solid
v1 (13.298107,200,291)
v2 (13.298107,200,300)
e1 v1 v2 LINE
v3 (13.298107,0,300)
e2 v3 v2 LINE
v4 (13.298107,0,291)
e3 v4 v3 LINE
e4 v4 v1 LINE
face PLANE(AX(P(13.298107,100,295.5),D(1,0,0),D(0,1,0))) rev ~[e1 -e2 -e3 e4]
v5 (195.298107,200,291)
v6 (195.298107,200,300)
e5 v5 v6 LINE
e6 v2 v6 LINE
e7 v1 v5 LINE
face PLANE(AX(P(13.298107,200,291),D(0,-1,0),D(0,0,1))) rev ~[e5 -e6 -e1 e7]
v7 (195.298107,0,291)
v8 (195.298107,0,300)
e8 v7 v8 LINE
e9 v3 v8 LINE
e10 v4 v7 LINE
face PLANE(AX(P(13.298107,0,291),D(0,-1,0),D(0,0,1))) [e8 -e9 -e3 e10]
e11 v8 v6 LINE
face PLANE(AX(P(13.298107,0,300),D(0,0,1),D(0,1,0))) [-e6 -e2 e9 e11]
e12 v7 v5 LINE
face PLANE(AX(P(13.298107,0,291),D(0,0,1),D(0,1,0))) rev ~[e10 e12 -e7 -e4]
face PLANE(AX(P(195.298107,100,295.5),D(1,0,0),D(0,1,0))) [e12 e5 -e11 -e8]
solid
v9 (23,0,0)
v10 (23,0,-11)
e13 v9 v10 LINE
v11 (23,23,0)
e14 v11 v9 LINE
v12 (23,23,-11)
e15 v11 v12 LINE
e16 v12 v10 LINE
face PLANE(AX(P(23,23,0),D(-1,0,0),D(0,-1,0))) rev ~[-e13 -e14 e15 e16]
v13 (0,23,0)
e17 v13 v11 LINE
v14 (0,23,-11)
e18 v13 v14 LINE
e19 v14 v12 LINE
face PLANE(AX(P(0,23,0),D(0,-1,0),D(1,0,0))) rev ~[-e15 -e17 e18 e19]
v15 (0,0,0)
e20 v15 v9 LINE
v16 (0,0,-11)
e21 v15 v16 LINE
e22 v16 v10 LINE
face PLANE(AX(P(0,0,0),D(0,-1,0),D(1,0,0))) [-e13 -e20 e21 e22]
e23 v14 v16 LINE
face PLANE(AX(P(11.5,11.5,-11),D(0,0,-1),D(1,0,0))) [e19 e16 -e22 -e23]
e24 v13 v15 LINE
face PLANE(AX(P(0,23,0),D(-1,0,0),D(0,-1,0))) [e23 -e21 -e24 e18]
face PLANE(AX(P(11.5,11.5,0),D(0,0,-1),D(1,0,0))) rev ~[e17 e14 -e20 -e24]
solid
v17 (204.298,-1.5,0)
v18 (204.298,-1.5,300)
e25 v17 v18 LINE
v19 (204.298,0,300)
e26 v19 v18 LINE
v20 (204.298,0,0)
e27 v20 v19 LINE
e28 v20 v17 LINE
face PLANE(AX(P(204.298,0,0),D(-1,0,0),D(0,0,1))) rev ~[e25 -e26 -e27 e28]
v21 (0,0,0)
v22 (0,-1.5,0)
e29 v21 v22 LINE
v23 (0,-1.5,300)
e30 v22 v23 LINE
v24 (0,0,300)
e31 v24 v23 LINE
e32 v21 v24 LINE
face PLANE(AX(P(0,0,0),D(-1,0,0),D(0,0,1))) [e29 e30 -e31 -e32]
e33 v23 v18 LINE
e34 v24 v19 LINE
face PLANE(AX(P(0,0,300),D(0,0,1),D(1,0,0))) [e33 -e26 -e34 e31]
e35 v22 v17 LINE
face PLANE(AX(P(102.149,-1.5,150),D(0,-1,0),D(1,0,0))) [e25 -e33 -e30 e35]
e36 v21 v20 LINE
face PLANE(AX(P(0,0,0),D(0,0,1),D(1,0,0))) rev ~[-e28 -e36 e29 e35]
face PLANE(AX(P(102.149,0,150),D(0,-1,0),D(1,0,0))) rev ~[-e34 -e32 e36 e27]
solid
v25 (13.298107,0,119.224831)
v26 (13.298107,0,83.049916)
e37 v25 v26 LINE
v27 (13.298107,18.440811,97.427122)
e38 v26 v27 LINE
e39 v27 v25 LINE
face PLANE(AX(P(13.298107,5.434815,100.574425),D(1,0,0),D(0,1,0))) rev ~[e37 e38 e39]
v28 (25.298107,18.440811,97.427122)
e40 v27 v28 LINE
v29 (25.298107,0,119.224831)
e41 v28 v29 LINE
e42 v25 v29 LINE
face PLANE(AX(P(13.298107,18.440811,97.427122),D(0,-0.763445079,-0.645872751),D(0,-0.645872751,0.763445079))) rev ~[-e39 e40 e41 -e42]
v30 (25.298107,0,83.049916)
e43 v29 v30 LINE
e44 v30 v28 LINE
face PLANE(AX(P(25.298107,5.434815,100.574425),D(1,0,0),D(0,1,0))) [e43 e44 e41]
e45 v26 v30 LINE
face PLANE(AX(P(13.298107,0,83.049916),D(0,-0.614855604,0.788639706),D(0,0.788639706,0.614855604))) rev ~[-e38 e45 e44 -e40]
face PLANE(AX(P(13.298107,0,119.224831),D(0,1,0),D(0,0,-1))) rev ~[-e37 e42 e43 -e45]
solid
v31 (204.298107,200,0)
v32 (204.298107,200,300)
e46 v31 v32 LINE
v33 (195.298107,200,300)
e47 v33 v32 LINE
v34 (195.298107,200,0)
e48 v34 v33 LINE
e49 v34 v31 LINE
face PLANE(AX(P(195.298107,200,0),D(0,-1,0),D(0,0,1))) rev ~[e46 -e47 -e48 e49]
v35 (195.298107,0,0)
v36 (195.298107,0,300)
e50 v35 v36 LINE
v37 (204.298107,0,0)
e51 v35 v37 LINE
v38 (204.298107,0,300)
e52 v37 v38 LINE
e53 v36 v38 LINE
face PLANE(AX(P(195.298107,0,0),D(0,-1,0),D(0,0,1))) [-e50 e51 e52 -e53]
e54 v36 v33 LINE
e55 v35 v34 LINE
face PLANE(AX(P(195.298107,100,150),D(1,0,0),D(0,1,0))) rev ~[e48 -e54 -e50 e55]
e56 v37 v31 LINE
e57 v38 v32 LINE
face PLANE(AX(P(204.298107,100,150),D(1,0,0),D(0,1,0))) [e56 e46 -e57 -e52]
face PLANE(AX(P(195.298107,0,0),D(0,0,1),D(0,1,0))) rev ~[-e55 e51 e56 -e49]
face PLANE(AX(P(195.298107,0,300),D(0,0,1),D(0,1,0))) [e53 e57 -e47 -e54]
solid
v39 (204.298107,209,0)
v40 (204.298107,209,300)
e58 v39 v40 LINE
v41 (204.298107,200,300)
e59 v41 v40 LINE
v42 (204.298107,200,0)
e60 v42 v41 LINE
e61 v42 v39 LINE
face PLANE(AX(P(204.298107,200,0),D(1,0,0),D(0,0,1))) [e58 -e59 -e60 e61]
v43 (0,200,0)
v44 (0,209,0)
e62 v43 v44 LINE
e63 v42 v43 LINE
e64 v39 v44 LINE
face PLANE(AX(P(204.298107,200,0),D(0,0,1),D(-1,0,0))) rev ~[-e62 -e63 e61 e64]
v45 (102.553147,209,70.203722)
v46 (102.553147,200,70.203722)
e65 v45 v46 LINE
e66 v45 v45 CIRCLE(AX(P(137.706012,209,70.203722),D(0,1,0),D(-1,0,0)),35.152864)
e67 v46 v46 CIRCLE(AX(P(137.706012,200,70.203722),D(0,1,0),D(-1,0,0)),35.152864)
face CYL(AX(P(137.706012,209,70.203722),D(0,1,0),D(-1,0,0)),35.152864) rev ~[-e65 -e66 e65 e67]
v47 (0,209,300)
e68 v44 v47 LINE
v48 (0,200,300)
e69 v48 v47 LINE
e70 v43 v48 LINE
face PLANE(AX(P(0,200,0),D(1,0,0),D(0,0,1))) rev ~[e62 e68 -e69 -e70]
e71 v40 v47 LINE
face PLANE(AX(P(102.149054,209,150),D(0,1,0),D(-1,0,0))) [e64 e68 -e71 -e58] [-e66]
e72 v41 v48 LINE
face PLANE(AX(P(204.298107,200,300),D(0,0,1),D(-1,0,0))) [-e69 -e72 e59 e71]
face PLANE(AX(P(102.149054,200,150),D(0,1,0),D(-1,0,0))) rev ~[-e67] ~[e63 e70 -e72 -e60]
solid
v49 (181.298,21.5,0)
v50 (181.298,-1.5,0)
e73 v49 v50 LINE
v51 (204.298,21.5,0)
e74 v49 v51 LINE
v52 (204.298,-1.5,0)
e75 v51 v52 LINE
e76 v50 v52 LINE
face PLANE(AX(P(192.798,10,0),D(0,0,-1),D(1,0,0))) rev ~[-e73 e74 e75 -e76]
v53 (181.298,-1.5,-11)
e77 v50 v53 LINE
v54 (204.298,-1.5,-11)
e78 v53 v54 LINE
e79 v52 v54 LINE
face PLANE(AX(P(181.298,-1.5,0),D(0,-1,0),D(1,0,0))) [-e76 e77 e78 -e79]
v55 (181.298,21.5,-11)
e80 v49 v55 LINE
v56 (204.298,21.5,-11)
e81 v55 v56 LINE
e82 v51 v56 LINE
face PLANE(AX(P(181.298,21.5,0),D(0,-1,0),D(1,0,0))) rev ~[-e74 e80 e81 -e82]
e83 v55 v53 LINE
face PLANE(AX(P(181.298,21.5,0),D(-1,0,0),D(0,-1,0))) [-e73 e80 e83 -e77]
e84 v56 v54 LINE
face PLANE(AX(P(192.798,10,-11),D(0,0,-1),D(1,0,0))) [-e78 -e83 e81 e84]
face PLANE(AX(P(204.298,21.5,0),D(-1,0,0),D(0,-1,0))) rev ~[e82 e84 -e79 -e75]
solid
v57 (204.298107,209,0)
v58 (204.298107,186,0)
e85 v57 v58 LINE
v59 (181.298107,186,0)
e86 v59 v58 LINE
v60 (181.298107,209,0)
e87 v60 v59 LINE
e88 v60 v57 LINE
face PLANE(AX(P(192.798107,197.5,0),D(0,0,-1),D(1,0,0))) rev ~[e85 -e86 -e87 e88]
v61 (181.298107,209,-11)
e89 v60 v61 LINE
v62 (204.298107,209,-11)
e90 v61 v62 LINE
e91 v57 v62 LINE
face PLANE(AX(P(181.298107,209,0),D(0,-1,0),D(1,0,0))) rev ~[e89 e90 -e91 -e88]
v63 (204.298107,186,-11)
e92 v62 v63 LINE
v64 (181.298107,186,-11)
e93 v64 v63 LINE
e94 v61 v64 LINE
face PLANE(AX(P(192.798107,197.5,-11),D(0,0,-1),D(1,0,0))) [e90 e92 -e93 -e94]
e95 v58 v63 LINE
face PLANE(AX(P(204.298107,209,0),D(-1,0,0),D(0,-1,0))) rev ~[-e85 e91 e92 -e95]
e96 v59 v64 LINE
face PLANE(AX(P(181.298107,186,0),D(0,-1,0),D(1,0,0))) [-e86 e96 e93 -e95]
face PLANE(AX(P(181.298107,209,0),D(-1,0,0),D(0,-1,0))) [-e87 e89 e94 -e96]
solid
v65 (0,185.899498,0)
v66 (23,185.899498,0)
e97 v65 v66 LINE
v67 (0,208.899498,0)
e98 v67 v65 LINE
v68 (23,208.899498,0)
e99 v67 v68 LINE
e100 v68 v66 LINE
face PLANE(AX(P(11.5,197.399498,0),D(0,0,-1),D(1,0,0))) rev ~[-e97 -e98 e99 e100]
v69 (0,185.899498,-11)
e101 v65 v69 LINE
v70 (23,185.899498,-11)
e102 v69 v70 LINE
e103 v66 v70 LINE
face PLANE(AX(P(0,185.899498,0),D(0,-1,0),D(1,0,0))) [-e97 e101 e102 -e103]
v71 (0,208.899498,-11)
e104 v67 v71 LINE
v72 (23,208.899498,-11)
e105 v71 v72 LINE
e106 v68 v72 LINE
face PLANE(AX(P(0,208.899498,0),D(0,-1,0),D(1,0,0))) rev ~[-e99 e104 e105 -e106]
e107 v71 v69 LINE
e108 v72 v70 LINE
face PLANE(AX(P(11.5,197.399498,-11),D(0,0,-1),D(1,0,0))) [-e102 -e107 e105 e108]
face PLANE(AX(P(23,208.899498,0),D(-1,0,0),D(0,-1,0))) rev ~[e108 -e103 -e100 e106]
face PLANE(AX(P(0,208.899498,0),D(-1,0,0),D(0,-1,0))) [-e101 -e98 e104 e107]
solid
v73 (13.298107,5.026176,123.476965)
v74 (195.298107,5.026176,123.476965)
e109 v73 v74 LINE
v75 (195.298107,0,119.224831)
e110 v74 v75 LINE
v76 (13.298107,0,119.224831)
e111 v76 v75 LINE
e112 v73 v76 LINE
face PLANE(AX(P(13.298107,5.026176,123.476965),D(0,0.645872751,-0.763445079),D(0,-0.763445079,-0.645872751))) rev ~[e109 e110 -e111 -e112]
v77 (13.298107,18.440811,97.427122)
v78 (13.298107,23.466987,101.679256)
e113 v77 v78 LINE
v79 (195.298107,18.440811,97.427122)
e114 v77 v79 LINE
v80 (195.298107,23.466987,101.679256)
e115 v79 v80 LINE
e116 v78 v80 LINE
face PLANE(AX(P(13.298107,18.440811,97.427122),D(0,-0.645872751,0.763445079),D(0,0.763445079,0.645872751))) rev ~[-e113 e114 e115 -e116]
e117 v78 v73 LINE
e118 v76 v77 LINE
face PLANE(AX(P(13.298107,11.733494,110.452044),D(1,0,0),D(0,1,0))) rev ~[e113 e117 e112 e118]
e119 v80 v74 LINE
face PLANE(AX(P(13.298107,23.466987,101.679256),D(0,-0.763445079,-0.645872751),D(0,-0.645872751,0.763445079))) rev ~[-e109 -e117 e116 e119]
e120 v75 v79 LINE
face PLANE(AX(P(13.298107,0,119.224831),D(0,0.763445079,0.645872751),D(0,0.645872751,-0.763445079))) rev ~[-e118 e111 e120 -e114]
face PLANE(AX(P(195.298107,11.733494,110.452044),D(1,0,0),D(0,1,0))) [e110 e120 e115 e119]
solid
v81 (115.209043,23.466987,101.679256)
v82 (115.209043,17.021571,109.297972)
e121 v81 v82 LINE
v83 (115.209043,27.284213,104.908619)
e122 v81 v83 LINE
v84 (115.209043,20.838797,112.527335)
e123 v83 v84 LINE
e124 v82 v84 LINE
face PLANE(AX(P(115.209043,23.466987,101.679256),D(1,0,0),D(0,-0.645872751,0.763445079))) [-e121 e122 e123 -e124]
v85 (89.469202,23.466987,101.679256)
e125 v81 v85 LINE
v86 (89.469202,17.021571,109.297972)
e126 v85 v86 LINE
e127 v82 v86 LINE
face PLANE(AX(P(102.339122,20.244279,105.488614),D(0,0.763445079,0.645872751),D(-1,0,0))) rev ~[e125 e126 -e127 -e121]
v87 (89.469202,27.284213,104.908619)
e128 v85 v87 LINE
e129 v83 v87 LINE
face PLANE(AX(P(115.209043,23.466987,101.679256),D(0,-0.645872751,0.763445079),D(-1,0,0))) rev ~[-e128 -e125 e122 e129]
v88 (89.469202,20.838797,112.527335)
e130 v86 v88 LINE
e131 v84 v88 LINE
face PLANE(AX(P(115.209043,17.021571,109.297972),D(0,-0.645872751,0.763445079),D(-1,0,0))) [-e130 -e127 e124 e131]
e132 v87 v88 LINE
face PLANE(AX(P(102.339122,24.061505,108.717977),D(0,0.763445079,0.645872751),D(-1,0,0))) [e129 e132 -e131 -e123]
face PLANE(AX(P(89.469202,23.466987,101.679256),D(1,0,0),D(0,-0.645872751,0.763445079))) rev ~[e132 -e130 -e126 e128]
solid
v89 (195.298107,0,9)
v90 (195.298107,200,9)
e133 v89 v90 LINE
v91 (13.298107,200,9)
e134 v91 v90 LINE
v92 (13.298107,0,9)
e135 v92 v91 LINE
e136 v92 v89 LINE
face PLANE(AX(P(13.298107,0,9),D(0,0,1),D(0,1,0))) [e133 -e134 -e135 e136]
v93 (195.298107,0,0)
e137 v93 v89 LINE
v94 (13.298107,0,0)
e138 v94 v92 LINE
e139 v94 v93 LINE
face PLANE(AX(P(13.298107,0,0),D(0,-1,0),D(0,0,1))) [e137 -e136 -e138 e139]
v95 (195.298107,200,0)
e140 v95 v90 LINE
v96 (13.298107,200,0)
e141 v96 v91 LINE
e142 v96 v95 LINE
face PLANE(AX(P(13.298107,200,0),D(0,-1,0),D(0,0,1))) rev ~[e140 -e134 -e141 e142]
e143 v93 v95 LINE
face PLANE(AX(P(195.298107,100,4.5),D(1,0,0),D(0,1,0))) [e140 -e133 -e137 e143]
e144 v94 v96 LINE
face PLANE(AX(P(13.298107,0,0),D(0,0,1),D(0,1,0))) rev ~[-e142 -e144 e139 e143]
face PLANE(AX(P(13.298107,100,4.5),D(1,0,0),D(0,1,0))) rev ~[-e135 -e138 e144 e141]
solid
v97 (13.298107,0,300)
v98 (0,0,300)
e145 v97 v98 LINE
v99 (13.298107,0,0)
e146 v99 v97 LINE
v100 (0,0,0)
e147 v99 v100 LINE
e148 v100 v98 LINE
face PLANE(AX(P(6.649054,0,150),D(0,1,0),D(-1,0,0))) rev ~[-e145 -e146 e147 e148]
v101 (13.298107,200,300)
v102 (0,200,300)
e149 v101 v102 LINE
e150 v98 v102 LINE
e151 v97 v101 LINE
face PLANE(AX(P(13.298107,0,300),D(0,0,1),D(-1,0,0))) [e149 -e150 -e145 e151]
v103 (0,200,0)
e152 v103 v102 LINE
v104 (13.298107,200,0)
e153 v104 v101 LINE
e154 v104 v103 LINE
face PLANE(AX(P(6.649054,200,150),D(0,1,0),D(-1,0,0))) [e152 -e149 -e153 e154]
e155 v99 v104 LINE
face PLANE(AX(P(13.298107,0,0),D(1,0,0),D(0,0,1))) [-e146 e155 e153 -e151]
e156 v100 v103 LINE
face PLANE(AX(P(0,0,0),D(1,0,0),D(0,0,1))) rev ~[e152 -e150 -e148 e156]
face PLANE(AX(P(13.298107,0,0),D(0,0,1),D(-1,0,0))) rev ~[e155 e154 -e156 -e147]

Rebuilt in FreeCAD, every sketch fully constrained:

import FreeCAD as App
import Part
import Sketcher

V = App.Vector
Q = App.Units.Quantity

doc = App.newDocument("Part")
params = doc.addObject("Spreadsheet::Sheet", "Params")
for row, (alias, value) in enumerate([
    ("sketch1_height", "300 mm"),
    ("pad1_length", "1.5 mm"),
    ("pocket1_length", "25 mm"),
    ("sketch3_height", "300 mm"),
    ("pad2_length", "200 mm"),
    ("pad3_length", "12 mm"),
    ("pad4_length", "182 mm"),
    ("pad5_length", "5 mm"),
    ("sketch7_width", "200 mm"),
    ("sketch7_height", "9 mm"),
    ("pad6_length", "182 mm"),
    ("sketch8_width", "200 mm"),
    ("sketch8_height", "9 mm"),
    ("pad7_length", "182 mm"),
    ("sketch9_width", "200 mm"),
    ("sketch9_height", "300 mm"),
    ("pad8_length", "9 mm"),
    ("sketch10_height", "300 mm"),
    ("pad9_length", "9 mm"),
    ("pocket2_length", "9 mm"),
    ("sketch12_width", "23 mm"),
    ("pad10_length", "11 mm"),
    ("sketch13_width", "23 mm"),
    ("pad11_length", "11 mm"),
    ("sketch14_width", "23 mm"),
    ("pad12_length", "11 mm"),
    ("sketch15_width", "23 mm"),
    ("pad13_length", "11 mm"),
], start=1):
    params.set(f"A{row}", alias)
    params.set(f"B{row}", "=" + value)
    params.setAlias(f"B{row}", alias)

body = doc.addObject("PartDesign::Body", "Body")

# Sketch on XZ plane
sketch1 = body.newObject("Sketcher::SketchObject", "Sketch")
sketch1.AttachmentSupport = (doc.getObject("XZ_Plane"), [""])
sketch1.MapMode = "FlatFace"
sketch1.addGeometry(Part.LineSegment(V(0, 300, 0), V(0, 0, 0)), False)
sketch1.addGeometry(Part.LineSegment(V(0, 0, 0), V(204, 0, 0)), False)
sketch1.addGeometry(Part.LineSegment(V(204, 0, 0), V(204, 300, 0)), False)
sketch1.addGeometry(Part.LineSegment(V(204, 300, 0), V(0, 300, 0)), False)
sketch1.addConstraint(Sketcher.Constraint("Coincident", 0, 2, 1, 1))
sketch1.addConstraint(Sketcher.Constraint("Coincident", 1, 2, 2, 1))
sketch1.addConstraint(Sketcher.Constraint("Coincident", 2, 2, 3, 1))
sketch1.addConstraint(Sketcher.Constraint("Coincident", 3, 2, 0, 1))
sketch1.addConstraint(Sketcher.Constraint("Vertical", 0))
sketch1.addConstraint(Sketcher.Constraint("Horizontal", 1))
sketch1.addConstraint(Sketcher.Constraint("Vertical", 2))
sketch1.addConstraint(Sketcher.Constraint("Horizontal", 3))
sketch1.addConstraint(Sketcher.Constraint("Coincident", 0, 2, -1, 1))
sketch1.addConstraint(Sketcher.Constraint("DistanceY", 0, 2, 0, 1, Q("300 mm")))
sketch1.addConstraint(Sketcher.Constraint("DistanceX", 1, 1, 1, 2, Q("204.298 mm")))
sketch1.setExpression("Constraints[9]", "Params.sketch1_height")
pad1 = body.newObject("PartDesign::Pad", "Pad")
pad1.Profile = sketch1
pad1.setExpression("Length", "Params.pad1_length")

# Sketch on XZ plane
sketch2 = body.newObject("Sketcher::SketchObject", "Sketch001")
sketch2.AttachmentSupport = (doc.getObject("XZ_Plane"), [""])
sketch2.MapMode = "FlatFace"
sketch2.AttachmentOffset = App.Placement(V(0, 0, -209), App.Rotation())
sketch2.addGeometry(Part.Circle(V(138, 70, 0), V(0, 0, 1), 35), False)
sketch2.addConstraint(Sketcher.Constraint("Diameter", 0, Q("70.305728 mm")))
sketch2.addConstraint(Sketcher.Constraint("DistanceX", -1, 1, 0, 3, Q("137.706012 mm")))
sketch2.addConstraint(Sketcher.Constraint("DistanceY", -1, 1, 0, 3, Q("70.203722 mm")))
pocket1 = body.newObject("PartDesign::Pocket", "Pocket")
pocket1.Profile = sketch2
pocket1.setExpression("Length", "Params.pocket1_length")
pocket1.Reversed = True
body2 = doc.addObject("PartDesign::Body", "Body001")

# Sketch on XZ plane
sketch3 = body2.newObject("Sketcher::SketchObject", "Sketch002")
sketch3.AttachmentSupport = (doc.getObject("XZ_Plane001"), [""])
sketch3.MapMode = "FlatFace"
sketch3.addGeometry(Part.LineSegment(V(13, 300, 0), V(13, 0, 0)), False)
sketch3.addGeometry(Part.LineSegment(V(13, 0, 0), V(0, 0, 0)), False)
sketch3.addGeometry(Part.LineSegment(V(0, 0, 0), V(0, 300, 0)), False)
sketch3.addGeometry(Part.LineSegment(V(0, 300, 0), V(13, 300, 0)), False)
sketch3.addConstraint(Sketcher.Constraint("Coincident", 0, 2, 1, 1))
sketch3.addConstraint(Sketcher.Constraint("Coincident", 1, 2, 2, 1))
sketch3.addConstraint(Sketcher.Constraint("Coincident", 2, 2, 3, 1))
sketch3.addConstraint(Sketcher.Constraint("Coincident", 3, 2, 0, 1))
sketch3.addConstraint(Sketcher.Constraint("Vertical", 0))
sketch3.addConstraint(Sketcher.Constraint("Horizontal", 1))
sketch3.addConstraint(Sketcher.Constraint("Vertical", 2))
sketch3.addConstraint(Sketcher.Constraint("Horizontal", 3))
sketch3.addConstraint(Sketcher.Constraint("Coincident", 1, 2, -1, 1))
sketch3.addConstraint(Sketcher.Constraint("DistanceY", 0, 2, 0, 1, Q("300 mm")))
sketch3.addConstraint(Sketcher.Constraint("DistanceX", 1, 2, 1, 1, Q("13.298107 mm")))
sketch3.setExpression("Constraints[9]", "Params.sketch3_height")
pad2 = body2.newObject("PartDesign::Pad", "Pad001")
pad2.Profile = sketch3
pad2.setExpression("Length", "Params.pad2_length")
pad2.Reversed = True
body3 = doc.addObject("PartDesign::Body", "Body002")

# Sketch on YZ plane
sketch4 = body3.newObject("Sketcher::SketchObject", "Sketch003")
sketch4.AttachmentSupport = (doc.getObject("YZ_Plane002"), [""])
sketch4.MapMode = "FlatFace"
sketch4.AttachmentOffset = App.Placement(V(0, 0, 13.298107), App.Rotation())
sketch4.addGeometry(Part.LineSegment(V(18, 97, 0), V(0, 119, 0)), False)
sketch4.addGeometry(Part.LineSegment(V(0, 119, 0), V(0, 83, 0)), False)
sketch4.addGeometry(Part.LineSegment(V(0, 83, 0), V(18, 97, 0)), False)
sketch4.addConstraint(Sketcher.Constraint("Coincident", 0, 2, 1, 1))
sketch4.addConstraint(Sketcher.Constraint("Coincident", 1, 2, 2, 1))
sketch4.addConstraint(Sketcher.Constraint("Coincident", 2, 2, 0, 1))
sketch4.addConstraint(Sketcher.Constraint("Vertical", 1))
sketch4.addConstraint(Sketcher.Constraint("PointOnObject", 0, 2, -2))
sketch4.addConstraint(Sketcher.Constraint("Distance", 0, Q("28.551771 mm")))
sketch4.addConstraint(Sketcher.Constraint("Distance", 2, Q("23.383062 mm")))
sketch4.addConstraint(Sketcher.Constraint("DistanceY", 1, 2, 1, 1, Q("36.174916 mm")))
sketch4.addConstraint(Sketcher.Constraint("DistanceY", -1, 1, 0, 2, Q("119.224831 mm")))
pad3 = body3.newObject("PartDesign::Pad", "Pad002")
pad3.Profile = sketch4
pad3.setExpression("Length", "Params.pad3_length")
body4 = doc.addObject("PartDesign::Body", "Body003")

# Sketch on YZ plane
sketch5 = body4.newObject("Sketcher::SketchObject", "Sketch004")
sketch5.AttachmentSupport = (doc.getObject("YZ_Plane003"), [""])
sketch5.MapMode = "FlatFace"
sketch5.AttachmentOffset = App.Placement(V(0, 0, 13.298107), App.Rotation())
sketch5.addGeometry(Part.LineSegment(V(0, 119, 0), V(18, 97, 0)), False)
sketch5.addGeometry(Part.LineSegment(V(18, 97, 0), V(23, 102, 0)), False)
sketch5.addGeometry(Part.LineSegment(V(23, 102, 0), V(5, 123, 0)), False)
sketch5.addGeometry(Part.LineSegment(V(5, 123, 0), V(0, 119, 0)), False)
sketch5.addConstraint(Sketcher.Constraint("Coincident", 0, 2, 1, 1))
sketch5.addConstraint(Sketcher.Constraint("Coincident", 1, 2, 2, 1))
sketch5.addConstraint(Sketcher.Constraint("Coincident", 2, 2, 3, 1))
sketch5.addConstraint(Sketcher.Constraint("Coincident", 3, 2, 0, 1))
sketch5.addConstraint(Sketcher.Constraint("PointOnObject", 3, 2, -2))
sketch5.addConstraint(Sketcher.Constraint("Perpendicular", 0, 1))
sketch5.addConstraint(Sketcher.Constraint("Perpendicular", 1, 2))
sketch5.addConstraint(Sketcher.Constraint("Perpendicular", 2, 3))
sketch5.addConstraint(Sketcher.Constraint("Distance", 0, Q("28.551771 mm")))
sketch5.addConstraint(Sketcher.Constraint("DistanceX", -1, 1, 0, 2, Q("18.440811 mm")))
sketch5.addConstraint(Sketcher.Constraint("DistanceY", -1, 1, 3, 2, Q("119.224831 mm")))
sketch5.addConstraint(Sketcher.Constraint("Distance", 1, Q("6.583547 mm")))
pad4 = body4.newObject("PartDesign::Pad", "Pad003")
pad4.Profile = sketch5
pad4.setExpression("Length", "Params.pad4_length")
body5 = doc.addObject("PartDesign::Body", "Body004")

# Sketch on an angled plane
sketch6 = body5.newObject("Sketcher::SketchObject", "Sketch005")
sketch6.Placement = App.Placement(V(0, 63.814555, 53.986964), App.Rotation(V(-1, 0, 0), V(0, -0.645872751, 0.763445079), V(0, 0.763445079, 0.645872751), "ZXY"))
sketch6.addGeometry(Part.LineSegment(V(-115, 72, 0), V(-115, 62, 0)), False)
sketch6.addGeometry(Part.LineSegment(V(-115, 62, 0), V(-89, 62, 0)), False)
sketch6.addGeometry(Part.LineSegment(V(-89, 62, 0), V(-89, 72, 0)), False)
sketch6.addGeometry(Part.LineSegment(V(-89, 72, 0), V(-115, 72, 0)), False)
sketch6.addConstraint(Sketcher.Constraint("Coincident", 0, 2, 1, 1))
sketch6.addConstraint(Sketcher.Constraint("Coincident", 1, 2, 2, 1))
sketch6.addConstraint(Sketcher.Constraint("Coincident", 2, 2, 3, 1))
sketch6.addConstraint(Sketcher.Constraint("Coincident", 3, 2, 0, 1))
sketch6.addConstraint(Sketcher.Constraint("Vertical", 0))
sketch6.addConstraint(Sketcher.Constraint("Horizontal", 1))
sketch6.addConstraint(Sketcher.Constraint("Vertical", 2))
sketch6.addConstraint(Sketcher.Constraint("Horizontal", 3))
sketch6.addConstraint(Sketcher.Constraint("DistanceX", 1, 1, 1, 2, Q("25.739841 mm")))
sketch6.addConstraint(Sketcher.Constraint("DistanceY", 0, 2, 0, 1, Q("9.97939 mm")))
sketch6.addConstraint(Sketcher.Constraint("DistanceX", 1, 2, -1, 1, Q("89.469202 mm")))
sketch6.addConstraint(Sketcher.Constraint("DistanceY", -1, 1, 0, 2, Q("62.46984 mm")))
pad5 = body5.newObject("PartDesign::Pad", "Pad004")
pad5.Profile = sketch6
pad5.setExpression("Length", "Params.pad5_length")
body6 = doc.addObject("PartDesign::Body", "Body005")

# Sketch on YZ plane
sketch7 = body6.newObject("Sketcher::SketchObject", "Sketch006")
sketch7.AttachmentSupport = (doc.getObject("YZ_Plane005"), [""])
sketch7.MapMode = "FlatFace"
sketch7.AttachmentOffset = App.Placement(V(0, 0, 13.298107), App.Rotation())
sketch7.addGeometry(Part.LineSegment(V(0, 300, 0), V(0, 291, 0)), False)
sketch7.addGeometry(Part.LineSegment(V(0, 291, 0), V(200, 291, 0)), False)
sketch7.addGeometry(Part.LineSegment(V(200, 291, 0), V(200, 300, 0)), False)
sketch7.addGeometry(Part.LineSegment(V(200, 300, 0), V(0, 300, 0)), False)
sketch7.addConstraint(Sketcher.Constraint("Coincident", 0, 2, 1, 1))
sketch7.addConstraint(Sketcher.Constraint("Coincident", 1, 2, 2, 1))
sketch7.addConstraint(Sketcher.Constraint("Coincident", 2, 2, 3, 1))
sketch7.addConstraint(Sketcher.Constraint("Coincident", 3, 2, 0, 1))
sketch7.addConstraint(Sketcher.Constraint("Vertical", 0))
sketch7.addConstraint(Sketcher.Constraint("Horizontal", 1))
sketch7.addConstraint(Sketcher.Constraint("Vertical", 2))
sketch7.addConstraint(Sketcher.Constraint("Horizontal", 3))
sketch7.addConstraint(Sketcher.Constraint("PointOnObject", 0, 2, -2))
sketch7.addConstraint(Sketcher.Constraint("DistanceX", 1, 1, 1, 2, Q("200 mm")))
sketch7.addConstraint(Sketcher.Constraint("DistanceY", 0, 2, 0, 1, Q("9 mm")))
sketch7.addConstraint(Sketcher.Constraint("DistanceY", -1, 1, 0, 2, Q("291 mm")))
sketch7.setExpression("Constraints[9]", "Params.sketch7_width")
sketch7.setExpression("Constraints[10]", "Params.sketch7_height")
pad6 = body6.newObject("PartDesign::Pad", "Pad005")
pad6.Profile = sketch7
pad6.setExpression("Length", "Params.pad6_length")
body7 = doc.addObject("PartDesign::Body", "Body006")

# Sketch on YZ plane
sketch8 = body7.newObject("Sketcher::SketchObject", "Sketch007")
sketch8.AttachmentSupport = (doc.getObject("YZ_Plane006"), [""])
sketch8.MapMode = "FlatFace"
sketch8.AttachmentOffset = App.Placement(V(0, 0, 13.298107), App.Rotation())
sketch8.addGeometry(Part.LineSegment(V(0, 9, 0), V(0, 0, 0)), False)
sketch8.addGeometry(Part.LineSegment(V(0, 0, 0), V(200, 0, 0)), False)
sketch8.addGeometry(Part.LineSegment(V(200, 0, 0), V(200, 9, 0)), False)
sketch8.addGeometry(Part.LineSegment(V(200, 9, 0), V(0, 9, 0)), False)
sketch8.addConstraint(Sketcher.Constraint("Coincident", 0, 2, 1, 1))
sketch8.addConstraint(Sketcher.Constraint("Coincident", 1, 2, 2, 1))
sketch8.addConstraint(Sketcher.Constraint("Coincident", 2, 2, 3, 1))
sketch8.addConstraint(Sketcher.Constraint("Coincident", 3, 2, 0, 1))
sketch8.addConstraint(Sketcher.Constraint("Vertical", 0))
sketch8.addConstraint(Sketcher.Constraint("Horizontal", 1))
sketch8.addConstraint(Sketcher.Constraint("Vertical", 2))
sketch8.addConstraint(Sketcher.Constraint("Horizontal", 3))
sketch8.addConstraint(Sketcher.Constraint("Coincident", 0, 2, -1, 1))
sketch8.addConstraint(Sketcher.Constraint("DistanceX", 1, 1, 1, 2, Q("200 mm")))
sketch8.addConstraint(Sketcher.Constraint("DistanceY", 0, 2, 0, 1, Q("9 mm")))
sketch8.setExpression("Constraints[9]", "Params.sketch8_width")
sketch8.setExpression("Constraints[10]", "Params.sketch8_height")
pad7 = body7.newObject("PartDesign::Pad", "Pad006")
pad7.Profile = sketch8
pad7.setExpression("Length", "Params.pad7_length")
body8 = doc.addObject("PartDesign::Body", "Body007")

# Sketch on YZ plane
sketch9 = body8.newObject("Sketcher::SketchObject", "Sketch008")
sketch9.AttachmentSupport = (doc.getObject("YZ_Plane007"), [""])
sketch9.MapMode = "FlatFace"
sketch9.AttachmentOffset = App.Placement(V(0, 0, 195.298107), App.Rotation())
sketch9.addGeometry(Part.LineSegment(V(0, 300, 0), V(0, 0, 0)), False)
sketch9.addGeometry(Part.LineSegment(V(0, 0, 0), V(200, 0, 0)), False)
sketch9.addGeometry(Part.LineSegment(V(200, 0, 0), V(200, 300, 0)), False)
sketch9.addGeometry(Part.LineSegment(V(200, 300, 0), V(0, 300, 0)), False)
sketch9.addConstraint(Sketcher.Constraint("Coincident", 0, 2, 1, 1))
sketch9.addConstraint(Sketcher.Constraint("Coincident", 1, 2, 2, 1))
sketch9.addConstraint(Sketcher.Constraint("Coincident", 2, 2, 3, 1))
sketch9.addConstraint(Sketcher.Constraint("Coincident", 3, 2, 0, 1))
sketch9.addConstraint(Sketcher.Constraint("Vertical", 0))
sketch9.addConstraint(Sketcher.Constraint("Horizontal", 1))
sketch9.addConstraint(Sketcher.Constraint("Vertical", 2))
sketch9.addConstraint(Sketcher.Constraint("Horizontal", 3))
sketch9.addConstraint(Sketcher.Constraint("Coincident", 0, 2, -1, 1))
sketch9.addConstraint(Sketcher.Constraint("DistanceX", 1, 1, 1, 2, Q("200 mm")))
sketch9.addConstraint(Sketcher.Constraint("DistanceY", 0, 2, 0, 1, Q("300 mm")))
sketch9.setExpression("Constraints[9]", "Params.sketch9_width")
sketch9.setExpression("Constraints[10]", "Params.sketch9_height")
pad8 = body8.newObject("PartDesign::Pad", "Pad007")
pad8.Profile = sketch9
pad8.setExpression("Length", "Params.pad8_length")
body9 = doc.addObject("PartDesign::Body", "Body008")

# Sketch on XZ plane
sketch10 = body9.newObject("Sketcher::SketchObject", "Sketch009")
sketch10.AttachmentSupport = (doc.getObject("XZ_Plane008"), [""])
sketch10.MapMode = "FlatFace"
sketch10.AttachmentOffset = App.Placement(V(0, 0, -200), App.Rotation())
sketch10.addGeometry(Part.LineSegment(V(204, 300, 0), V(204, 0, 0)), False)
sketch10.addGeometry(Part.LineSegment(V(204, 0, 0), V(0, 0, 0)), False)
sketch10.addGeometry(Part.LineSegment(V(0, 0, 0), V(0, 300, 0)), False)
sketch10.addGeometry(Part.LineSegment(V(0, 300, 0), V(204, 300, 0)), False)
sketch10.addConstraint(Sketcher.Constraint("Coincident", 0, 2, 1, 1))
sketch10.addConstraint(Sketcher.Constraint("Coincident", 1, 2, 2, 1))
sketch10.addConstraint(Sketcher.Constraint("Coincident", 2, 2, 3, 1))
sketch10.addConstraint(Sketcher.Constraint("Coincident", 3, 2, 0, 1))
sketch10.addConstraint(Sketcher.Constraint("Vertical", 0))
sketch10.addConstraint(Sketcher.Constraint("Horizontal", 1))
sketch10.addConstraint(Sketcher.Constraint("Vertical", 2))
sketch10.addConstraint(Sketcher.Constraint("Horizontal", 3))
sketch10.addConstraint(Sketcher.Constraint("Coincident", 1, 2, -1, 1))
sketch10.addConstraint(Sketcher.Constraint("DistanceY", 0, 2, 0, 1, Q("300 mm")))
sketch10.addConstraint(Sketcher.Constraint("DistanceX", 1, 2, 1, 1, Q("204.298107 mm")))
sketch10.setExpression("Constraints[9]", "Params.sketch10_height")
pad9 = body9.newObject("PartDesign::Pad", "Pad008")
pad9.Profile = sketch10
pad9.setExpression("Length", "Params.pad9_length")
pad9.Reversed = True

# Sketch on XZ plane
sketch11 = body9.newObject("Sketcher::SketchObject", "Sketch010")
sketch11.AttachmentSupport = (doc.getObject("XZ_Plane008"), [""])
sketch11.MapMode = "FlatFace"
sketch11.AttachmentOffset = App.Placement(V(0, 0, -209), App.Rotation())
sketch11.addGeometry(Part.Circle(V(138, 70, 0), V(0, 0, 1), 35), False)
sketch11.addConstraint(Sketcher.Constraint("Diameter", 0, Q("70.305728 mm")))
sketch11.addConstraint(Sketcher.Constraint("DistanceX", -1, 1, 0, 3, Q("137.706012 mm")))
sketch11.addConstraint(Sketcher.Constraint("DistanceY", -1, 1, 0, 3, Q("70.203722 mm")))
pocket2 = body9.newObject("PartDesign::Pocket", "Pocket001")
pocket2.Profile = sketch11
pocket2.setExpression("Length", "Params.pocket2_length")
pocket2.Reversed = True
body10 = doc.addObject("PartDesign::Body", "Body009")

# Sketch on XY plane
sketch12 = body10.newObject("Sketcher::SketchObject", "Sketch011")
sketch12.AttachmentSupport = (doc.getObject("XY_Plane009"), [""])
sketch12.MapMode = "FlatFace"
sketch12.addGeometry(Part.LineSegment(V(181, 186, 0), V(181, 209, 0)), False)
sketch12.addGeometry(Part.LineSegment(V(181, 209, 0), V(204, 209, 0)), False)
sketch12.addGeometry(Part.LineSegment(V(204, 209, 0), V(204, 186, 0)), False)
sketch12.addGeometry(Part.LineSegment(V(204, 186, 0), V(181, 186, 0)), False)
sketch12.addConstraint(Sketcher.Constraint("Coincident", 0, 2, 1, 1))
sketch12.addConstraint(Sketcher.Constraint("Coincident", 1, 2, 2, 1))
sketch12.addConstraint(Sketcher.Constraint("Coincident", 2, 2, 3, 1))
sketch12.addConstraint(Sketcher.Constraint("Coincident", 3, 2, 0, 1))
sketch12.addConstraint(Sketcher.Constraint("Vertical", 0))
sketch12.addConstraint(Sketcher.Constraint("Horizontal", 1))
sketch12.addConstraint(Sketcher.Constraint("Vertical", 2))
sketch12.addConstraint(Sketcher.Constraint("Horizontal", 3))
sketch12.addConstraint(Sketcher.Constraint("Equal", 3, 0))
sketch12.addConstraint(Sketcher.Constraint("DistanceX", 1, 1, 1, 2, Q("23 mm")))
sketch12.addConstraint(Sketcher.Constraint("DistanceY", -1, 1, 0, 2, Q("209 mm")))
sketch12.addConstraint(Sketcher.Constraint("DistanceX", -1, 1, 0, 2, Q("181.298107 mm")))
sketch12.setExpression("Constraints[9]", "Params.sketch12_width")
pad10 = body10.newObject("PartDesign::Pad", "Pad009")
pad10.Profile = sketch12
pad10.setExpression("Length", "Params.pad10_length")
pad10.Reversed = True
body11 = doc.addObject("PartDesign::Body", "Body010")

# Sketch on XY plane
sketch13 = body11.newObject("Sketcher::SketchObject", "Sketch012")
sketch13.AttachmentSupport = (doc.getObject("XY_Plane010"), [""])
sketch13.MapMode = "FlatFace"
sketch13.addGeometry(Part.LineSegment(V(0, 186, 0), V(0, 209, 0)), False)
sketch13.addGeometry(Part.LineSegment(V(0, 209, 0), V(23, 209, 0)), False)
sketch13.addGeometry(Part.LineSegment(V(23, 209, 0), V(23, 186, 0)), False)
sketch13.addGeometry(Part.LineSegment(V(23, 186, 0), V(0, 186, 0)), False)
sketch13.addConstraint(Sketcher.Constraint("Coincident", 0, 2, 1, 1))
sketch13.addConstraint(Sketcher.Constraint("Coincident", 1, 2, 2, 1))
sketch13.addConstraint(Sketcher.Constraint("Coincident", 2, 2, 3, 1))
sketch13.addConstraint(Sketcher.Constraint("Coincident", 3, 2, 0, 1))
sketch13.addConstraint(Sketcher.Constraint("Vertical", 0))
sketch13.addConstraint(Sketcher.Constraint("Horizontal", 1))
sketch13.addConstraint(Sketcher.Constraint("Vertical", 2))
sketch13.addConstraint(Sketcher.Constraint("Horizontal", 3))
sketch13.addConstraint(Sketcher.Constraint("PointOnObject", 0, 2, -2))
sketch13.addConstraint(Sketcher.Constraint("Equal", 3, 0))
sketch13.addConstraint(Sketcher.Constraint("DistanceX", 1, 1, 1, 2, Q("23 mm")))
sketch13.addConstraint(Sketcher.Constraint("DistanceY", -1, 1, 0, 2, Q("208.899498 mm")))
sketch13.setExpression("Constraints[10]", "Params.sketch13_width")
pad11 = body11.newObject("PartDesign::Pad", "Pad010")
pad11.Profile = sketch13
pad11.setExpression("Length", "Params.pad11_length")
pad11.Reversed = True
body12 = doc.addObject("PartDesign::Body", "Body011")

# Sketch on XY plane
sketch14 = body12.newObject("Sketcher::SketchObject", "Sketch013")
sketch14.AttachmentSupport = (doc.getObject("XY_Plane011"), [""])
sketch14.MapMode = "FlatFace"
sketch14.addGeometry(Part.LineSegment(V(0, 0, 0), V(0, 23, 0)), False)
sketch14.addGeometry(Part.LineSegment(V(0, 23, 0), V(23, 23, 0)), False)
sketch14.addGeometry(Part.LineSegment(V(23, 23, 0), V(23, 0, 0)), False)
sketch14.addGeometry(Part.LineSegment(V(23, 0, 0), V(0, 0, 0)), False)
sketch14.addConstraint(Sketcher.Constraint("Coincident", 0, 2, 1, 1))
sketch14.addConstraint(Sketcher.Constraint("Coincident", 1, 2, 2, 1))
sketch14.addConstraint(Sketcher.Constraint("Coincident", 2, 2, 3, 1))
sketch14.addConstraint(Sketcher.Constraint("Coincident", 3, 2, 0, 1))
sketch14.addConstraint(Sketcher.Constraint("Vertical", 0))
sketch14.addConstraint(Sketcher.Constraint("Horizontal", 1))
sketch14.addConstraint(Sketcher.Constraint("Vertical", 2))
sketch14.addConstraint(Sketcher.Constraint("Horizontal", 3))
sketch14.addConstraint(Sketcher.Constraint("Coincident", 3, 2, -1, 1))
sketch14.addConstraint(Sketcher.Constraint("Equal", 3, 0))
sketch14.addConstraint(Sketcher.Constraint("DistanceX", 1, 1, 1, 2, Q("23 mm")))
sketch14.setExpression("Constraints[10]", "Params.sketch14_width")
pad12 = body12.newObject("PartDesign::Pad", "Pad011")
pad12.Profile = sketch14
pad12.setExpression("Length", "Params.pad12_length")
pad12.Reversed = True
body13 = doc.addObject("PartDesign::Body", "Body012")

# Sketch on XY plane
sketch15 = body13.newObject("Sketcher::SketchObject", "Sketch014")
sketch15.AttachmentSupport = (doc.getObject("XY_Plane012"), [""])
sketch15.MapMode = "FlatFace"
sketch15.addGeometry(Part.LineSegment(V(181, -2, 0), V(181, 22, 0)), False)
sketch15.addGeometry(Part.LineSegment(V(181, 22, 0), V(204, 22, 0)), False)
sketch15.addGeometry(Part.LineSegment(V(204, 22, 0), V(204, -2, 0)), False)
sketch15.addGeometry(Part.LineSegment(V(204, -2, 0), V(181, -2, 0)), False)
sketch15.addConstraint(Sketcher.Constraint("Coincident", 0, 2, 1, 1))
sketch15.addConstraint(Sketcher.Constraint("Coincident", 1, 2, 2, 1))
sketch15.addConstraint(Sketcher.Constraint("Coincident", 2, 2, 3, 1))
sketch15.addConstraint(Sketcher.Constraint("Coincident", 3, 2, 0, 1))
sketch15.addConstraint(Sketcher.Constraint("Vertical", 0))
sketch15.addConstraint(Sketcher.Constraint("Horizontal", 1))
sketch15.addConstraint(Sketcher.Constraint("Vertical", 2))
sketch15.addConstraint(Sketcher.Constraint("Horizontal", 3))
sketch15.addConstraint(Sketcher.Constraint("Equal", 3, 0))
sketch15.addConstraint(Sketcher.Constraint("DistanceX", 1, 1, 1, 2, Q("23 mm")))
sketch15.addConstraint(Sketcher.Constraint("DistanceY", -1, 1, 0, 2, Q("21.5 mm")))
sketch15.addConstraint(Sketcher.Constraint("DistanceX", -1, 1, 0, 2, Q("181.298 mm")))
sketch15.setExpression("Constraints[9]", "Params.sketch15_width")
pad13 = body13.newObject("PartDesign::Pad", "Pad012")
pad13.Profile = sketch15
pad13.setExpression("Length", "Params.pad13_length")
pad13.Reversed = True

doc.recompute()
